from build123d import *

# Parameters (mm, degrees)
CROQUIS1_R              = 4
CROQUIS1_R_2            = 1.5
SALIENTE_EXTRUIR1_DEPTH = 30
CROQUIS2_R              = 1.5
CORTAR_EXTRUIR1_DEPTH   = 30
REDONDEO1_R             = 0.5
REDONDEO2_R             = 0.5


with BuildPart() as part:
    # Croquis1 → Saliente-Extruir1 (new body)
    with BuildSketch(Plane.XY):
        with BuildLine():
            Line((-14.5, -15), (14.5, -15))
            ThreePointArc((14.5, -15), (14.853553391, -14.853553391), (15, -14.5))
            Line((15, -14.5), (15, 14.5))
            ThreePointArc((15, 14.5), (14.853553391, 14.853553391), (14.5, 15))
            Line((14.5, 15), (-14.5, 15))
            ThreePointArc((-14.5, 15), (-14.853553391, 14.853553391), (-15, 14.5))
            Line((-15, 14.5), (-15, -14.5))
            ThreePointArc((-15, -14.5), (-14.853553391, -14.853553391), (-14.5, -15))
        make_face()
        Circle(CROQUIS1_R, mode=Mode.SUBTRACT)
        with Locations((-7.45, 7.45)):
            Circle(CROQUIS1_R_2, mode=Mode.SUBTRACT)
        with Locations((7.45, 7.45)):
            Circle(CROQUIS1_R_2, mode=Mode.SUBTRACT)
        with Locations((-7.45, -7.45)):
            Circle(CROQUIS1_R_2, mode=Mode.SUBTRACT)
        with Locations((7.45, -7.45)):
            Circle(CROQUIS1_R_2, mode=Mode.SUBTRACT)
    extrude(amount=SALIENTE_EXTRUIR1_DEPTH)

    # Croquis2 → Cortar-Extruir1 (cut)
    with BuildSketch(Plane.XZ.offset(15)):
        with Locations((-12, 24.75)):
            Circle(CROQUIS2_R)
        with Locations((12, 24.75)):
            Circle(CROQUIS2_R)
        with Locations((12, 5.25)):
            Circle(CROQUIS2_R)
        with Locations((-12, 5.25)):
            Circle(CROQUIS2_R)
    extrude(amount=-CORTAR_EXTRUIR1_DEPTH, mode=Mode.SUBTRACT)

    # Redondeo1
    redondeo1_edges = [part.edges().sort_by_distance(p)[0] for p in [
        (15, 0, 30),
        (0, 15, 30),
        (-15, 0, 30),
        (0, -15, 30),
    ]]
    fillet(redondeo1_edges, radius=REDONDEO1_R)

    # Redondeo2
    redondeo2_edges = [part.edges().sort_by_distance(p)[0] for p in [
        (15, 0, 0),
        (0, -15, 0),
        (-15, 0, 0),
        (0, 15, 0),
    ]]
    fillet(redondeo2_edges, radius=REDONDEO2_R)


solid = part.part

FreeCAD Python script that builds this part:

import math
import FreeCAD as App
import Part
import Sketcher
from FreeCAD import Vector
Q = App.Units.Quantity


def edges_at(feature, points):
    """Names of the edges that pass closest to the given points."""
    edges = feature.Shape.Edges
    near = lambda p: min(range(len(edges)), key=lambda i: edges[i].distToShape(Part.Vertex(*p))[0])
    return sorted({f"Edge{near(p) + 1}" for p in points})

doc = App.newDocument("Part")
params = doc.addObject("Spreadsheet::Sheet", "Params")
for row, (alias, value) in enumerate([
    ("sketch1_diameter", "3 mm"),
    ("sketch1_diameter2", "8 mm"),
    ("sketch1_radius", "0.5 mm"),
    ("sketch1_width", "29 mm"),
    ("pad1_length", "30 mm"),
    ("sketch2_diameter", "3 mm"),
    ("pocket1_length", "30 mm"),
    ("fillet_radius", "0.5 mm"),
    ("fillet2_radius", "0.5 mm"),
], start=1):
    params.set(f"A{row}", alias)
    params.set(f"B{row}", "=" + value)
    params.setAlias(f"B{row}", alias)

body = doc.addObject("PartDesign::Body", "Body")

# Sketch on XY plane
sketch1 = body.newObject("Sketcher::SketchObject", "Sketch")
sketch1.AttachmentSupport = (doc.getObject("XY_Plane"), [""])
sketch1.MapMode = "FlatFace"
sketch1.addGeometry([
    Part.LineSegment(Vector(-14.5, -15, 0), Vector(14.5, -15, 0)),  # 0
    Part.ArcOfCircle(Part.Circle(Vector(14.5, -14.5, 0), Vector(0, 0, 1), 0.5), math.radians(-90), math.radians(0)),  # 1
    Part.LineSegment(Vector(15, -14.5, 0), Vector(15, 14.5, 0)),  # 2
    Part.ArcOfCircle(Part.Circle(Vector(14.5, 14.5, 0), Vector(0, 0, 1), 0.5), math.radians(0), math.radians(90)),  # 3
    Part.LineSegment(Vector(14.5, 15, 0), Vector(-14.5, 15, 0)),  # 4
    Part.ArcOfCircle(Part.Circle(Vector(-14.5, 14.5, 0), Vector(0, 0, 1), 0.5), math.radians(90), math.radians(180)),  # 5
    Part.LineSegment(Vector(-15, 14.5, 0), Vector(-15, -14.5, 0)),  # 6
    Part.ArcOfCircle(Part.Circle(Vector(-14.5, -14.5, 0), Vector(0, 0, 1), 0.5), math.radians(180), math.radians(270)),  # 7
    Part.Circle(Vector(-7.45, -7.45, 0), Vector(0, 0, 1), 1.5),  # 8
    Part.Circle(Vector(7.45, -7.45, 0), Vector(0, 0, 1), 1.5),  # 9
    Part.Circle(Vector(-7.45, 7.45, 0), Vector(0, 0, 1), 1.5),  # 10
    Part.Circle(Vector(0, 0, 0), Vector(0, 0, 1), 4),  # 11
    Part.Circle(Vector(7.45, 7.45, 0), Vector(0, 0, 1), 1.5),  # 12
], False)
sketch1.addConstraint([
    Sketcher.Constraint("Tangent", 0, 2, 1, 1),
    Sketcher.Constraint("Tangent", 1, 2, 2, 1),
    Sketcher.Constraint("Tangent", 2, 2, 3, 1),
    Sketcher.Constraint("Tangent", 3, 2, 4, 1),
    Sketcher.Constraint("Tangent", 4, 2, 5, 1),
    Sketcher.Constraint("Tangent", 5, 2, 6, 1),
    Sketcher.Constraint("Tangent", 6, 2, 7, 1),
    Sketcher.Constraint("Tangent", 7, 2, 0, 1),
    Sketcher.Constraint("Horizontal", 0),
    Sketcher.Constraint("Vertical", 2),
    Sketcher.Constraint("Horizontal", 4),
    Sketcher.Constraint("Vertical", 6),
    Sketcher.Constraint("Coincident", 11, 3, -1, 1),
    Sketcher.Constraint("Equal", 1, 3),
    Sketcher.Constraint("Equal", 3, 5),
    Sketcher.Constraint("Equal", 5, 7),
    Sketcher.Constraint("Equal", 8, 9),
    Sketcher.Constraint("Equal", 9, 10),
    Sketcher.Constraint("Equal", 10, 12),
    Sketcher.Constraint("Symmetric", 1, 3, 5, 3, -1, 1),
    Sketcher.Constraint("Symmetric", 9, 3, 10, 3, -1, 1),
    Sketcher.Constraint("Symmetric", 8, 3, 12, 3, -1, 1),
    Sketcher.Constraint("Symmetric", 8, 3, 9, 3, -2),
    Sketcher.Constraint("Equal", 4, 2),
    Sketcher.Constraint("Diameter", 8, Q("3 mm")),
    Sketcher.Constraint("Diameter", 11, Q("8 mm")),
    Sketcher.Constraint("Radius", 1, Q("0.5 mm")),
    Sketcher.Constraint("DistanceX", 0, 1, 0, 2, Q("29 mm")),
    Sketcher.Constraint("DistanceX", 8, 3, 9, 3, Q("14.9 mm")),
    Sketcher.Constraint("DistanceY", 8, 3, 10, 3, Q("14.9 mm")),
])
sketch1.setExpression("Constraints[24]", "Params.sketch1_diameter")
sketch1.setExpression("Constraints[25]", "Params.sketch1_diameter2")
sketch1.setExpression("Constraints[26]", "Params.sketch1_radius")
sketch1.setExpression("Constraints[27]", "Params.sketch1_width")
pad1 = body.newObject("PartDesign::Pad", "Pad")
pad1.Profile = sketch1
pad1.setExpression("Length", "Params.pad1_length")

# Sketch on XZ plane
sketch2 = body.newObject("Sketcher::SketchObject", "Sketch001")
sketch2.AttachmentSupport = (doc.getObject("XZ_Plane"), [""])
sketch2.MapMode = "FlatFace"
sketch2.AttachmentOffset = App.Placement(Vector(0, 0, 15), App.Rotation())
sketch2.addGeometry([
    Part.Circle(Vector(-12, 24.8, 0), Vector(0, 0, 1), 1.5),
    Part.Circle(Vector(12, 24.8, 0), Vector(0, 0, 1), 1.5),
    Part.Circle(Vector(12, 5.2, 0), Vector(0, 0, 1), 1.5),
    Part.Circle(Vector(-12, 5.2, 0), Vector(0, 0, 1), 1.5),
], False)
sketch2.addConstraint([
    Sketcher.Constraint("Equal", 0, 1),
    Sketcher.Constraint("Equal", 1, 2),
    Sketcher.Constraint("Equal", 2, 3),
    Sketcher.Constraint("Symmetric", 0, 3, 1, 3, -2),
    Sketcher.Constraint("Symmetric", 2, 3, 3, 3, -2),
    Sketcher.Constraint("Vertical", 1, 3, 2, 3),
    Sketcher.Constraint("Diameter", 0, Q("3 mm")),
    Sketcher.Constraint("DistanceX", 0, 3, -1, 1, Q("12 mm")),
    Sketcher.Constraint("DistanceY", 2, 3, 1, 3, Q("19.5 mm")),
    Sketcher.Constraint("DistanceY", -1, 1, 0, 3, Q("24.75 mm")),
])
sketch2.setExpression("Constraints[6]", "Params.sketch2_diameter")
pocket1 = body.newObject("PartDesign::Pocket", "Pocket")
pocket1.Profile = sketch2
pocket1.setExpression("Length", "Params.pocket1_length")
doc.recompute()

fillet = body.newObject("PartDesign::Fillet", "Fillet")
fillet.Base = (pocket1, edges_at(pocket1, [
    (15, 0, 30),
    (0, 15, 30),
    (-15, 0, 30),
    (0, -15, 30),
]))
fillet.setExpression("Radius", "Params.fillet_radius")
doc.recompute()

fillet2 = body.newObject("PartDesign::Fillet", "Fillet001")
fillet2.Base = (fillet, edges_at(fillet, [
    (15, 0, 0),
    (0, -15, 0),
    (-15, 0, 0),
    (0, 15, 0),
]))
fillet2.setExpression("Radius", "Params.fillet2_radius")

doc.recompute()
